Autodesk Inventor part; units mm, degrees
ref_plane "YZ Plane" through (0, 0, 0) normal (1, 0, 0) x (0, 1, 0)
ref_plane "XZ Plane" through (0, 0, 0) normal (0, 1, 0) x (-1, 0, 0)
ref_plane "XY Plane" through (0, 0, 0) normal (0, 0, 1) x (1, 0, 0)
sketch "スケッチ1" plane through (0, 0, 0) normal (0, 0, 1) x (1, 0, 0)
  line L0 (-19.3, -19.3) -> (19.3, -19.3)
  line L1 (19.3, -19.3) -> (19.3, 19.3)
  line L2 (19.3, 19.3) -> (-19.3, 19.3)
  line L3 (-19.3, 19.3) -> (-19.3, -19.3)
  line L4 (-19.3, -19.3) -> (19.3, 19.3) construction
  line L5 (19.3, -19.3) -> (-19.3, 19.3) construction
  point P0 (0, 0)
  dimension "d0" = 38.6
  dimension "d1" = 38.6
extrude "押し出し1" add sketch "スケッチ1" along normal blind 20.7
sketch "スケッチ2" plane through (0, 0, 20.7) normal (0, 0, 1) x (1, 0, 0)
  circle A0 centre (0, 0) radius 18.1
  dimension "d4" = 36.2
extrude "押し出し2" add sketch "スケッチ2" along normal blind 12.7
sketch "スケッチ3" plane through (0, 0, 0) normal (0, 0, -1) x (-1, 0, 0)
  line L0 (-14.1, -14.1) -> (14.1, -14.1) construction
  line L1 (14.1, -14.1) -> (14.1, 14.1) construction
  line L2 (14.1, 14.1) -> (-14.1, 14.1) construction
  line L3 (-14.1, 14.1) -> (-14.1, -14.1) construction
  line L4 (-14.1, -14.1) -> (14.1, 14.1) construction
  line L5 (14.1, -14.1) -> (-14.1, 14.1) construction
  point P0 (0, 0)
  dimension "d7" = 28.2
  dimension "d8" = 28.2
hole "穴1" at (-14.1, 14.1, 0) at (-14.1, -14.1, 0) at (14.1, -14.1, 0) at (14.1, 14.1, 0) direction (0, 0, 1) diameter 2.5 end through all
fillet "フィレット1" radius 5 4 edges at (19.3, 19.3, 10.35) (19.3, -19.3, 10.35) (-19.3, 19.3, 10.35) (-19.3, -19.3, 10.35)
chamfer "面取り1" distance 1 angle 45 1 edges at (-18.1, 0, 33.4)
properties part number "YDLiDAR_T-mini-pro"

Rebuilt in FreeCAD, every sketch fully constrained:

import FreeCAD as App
import Part
import Sketcher
from FreeCAD import Vector
Q = App.Units.Quantity


def edges_at(feature, points):
    """Names of the edges that pass closest to the given points."""
    edges = feature.Shape.Edges
    near = lambda p: min(range(len(edges)), key=lambda i: edges[i].distToShape(Part.Vertex(*p))[0])
    return sorted({f"Edge{near(p) + 1}" for p in points})


def add_polygon(sketch, points):
    """Adds a closed chain of lines whose ends are joined by coincident constraints."""
    first, n = sketch.GeometryCount, len(points)
    for a, b in zip(points, points[1:] + points[:1]):
        sketch.addGeometry(Part.LineSegment(App.Vector(*a, 0), App.Vector(*b, 0)), False)
    for i in range(n):
        sketch.addConstraint(Sketcher.Constraint("Coincident", first + i, 2, first + (i + 1) % n, 1))

doc = App.newDocument("Part")
body = doc.addObject("PartDesign::Body", "Body")

sketch1 = body.newObject("Sketcher::SketchObject", "Sketch")
sketch1.AttachmentSupport = (doc.getObject("XY_Plane"), [""])
sketch1.MapMode = "FlatFace"
add_polygon(sketch1, [(-19, 19), (-19, -19), (19, -19), (19, 19)])
sketch1.addConstraint([
    Sketcher.Constraint("Vertical", 0),
    Sketcher.Constraint("Horizontal", 1),
    Sketcher.Constraint("Vertical", 2),
    Sketcher.Constraint("Horizontal", 3),
    Sketcher.Constraint("Symmetric", 0, 2, 2, 2, -1, 1),
    Sketcher.Constraint("Equal", 3, 0),
    Sketcher.Constraint("DistanceX", 1, 1, 1, 2, Q("38.6 mm")),
])
pad1 = body.newObject("PartDesign::Pad", "Pad")
pad1.Profile = sketch1
pad1.Length = 20.7

sketch2 = body.newObject("Sketcher::SketchObject", "Sketch001")
sketch2.AttachmentSupport = (doc.getObject("XY_Plane"), [""])
sketch2.MapMode = "FlatFace"
sketch2.AttachmentOffset = App.Placement(Vector(0, 0, 20.7), App.Rotation())
sketch2.addGeometry(Part.Circle(Vector(0, 0, 0), Vector(0, 0, 1), 18), False)
sketch2.addConstraint([
    Sketcher.Constraint("Coincident", 0, 3, -1, 1),
    Sketcher.Constraint("Diameter", 0, Q("36.2 mm")),
])
pad2 = body.newObject("PartDesign::Pad", "Pad001")
pad2.Profile = sketch2
pad2.Length = 12.7

sketch3 = body.newObject("Sketcher::SketchObject", "Sketch002")
sketch3.AttachmentSupport = (doc.getObject("XY_Plane"), [""])
sketch3.MapMode = "FlatFace"
sketch3.addGeometry([
    Part.Circle(Vector(-14.1, 14.1, 0), Vector(0, 0, 1), 1.2),
    Part.Circle(Vector(-14.1, -14.1, 0), Vector(0, 0, 1), 1.2),
    Part.Circle(Vector(14.1, -14.1, 0), Vector(0, 0, 1), 1.2),
    Part.Circle(Vector(14.1, 14.1, 0), Vector(0, 0, 1), 1.2),
], False)
sketch3.addConstraint([
    Sketcher.Constraint("Equal", 0, 1),
    Sketcher.Constraint("Equal", 1, 2),
    Sketcher.Constraint("Equal", 2, 3),
    Sketcher.Constraint("Symmetric", 0, 3, 2, 3, -1, 1),
    Sketcher.Constraint("Symmetric", 1, 3, 3, 3, -1, 1),
    Sketcher.Constraint("Symmetric", 1, 3, 2, 3, -2),
    Sketcher.Constraint("Diameter", 0, Q("2.5 mm")),
    Sketcher.Constraint("DistanceX", 0, 3, -1, 1, Q("14.1 mm")),
    Sketcher.Constraint("DistanceY", -1, 1, 0, 3, Q("14.1 mm")),
])
doc.recompute()
hole = body.newObject("PartDesign::Hole", "Hole")
hole.Profile = sketch3
hole.ThreadType = "None"
hole.Diameter = 2.5
hole.DepthType = "ThroughAll"
hole.Reversed = True
doc.recompute()

fillet = body.newObject("PartDesign::Fillet", "Fillet")
fillet.Base = (hole, edges_at(hole, [
    (19.3, 19.3, 10.35),
    (19.3, -19.3, 10.35),
    (-19.3, 19.3, 10.35),
    (-19.3, -19.3, 10.35),
]))
fillet.Radius = 5
doc.recompute()

chamfer = body.newObject("PartDesign::Chamfer", "Chamfer")
chamfer.Base = (fillet, edges_at(fillet, [(-18.1, 0, 33.4)]))
chamfer.Size = 1

doc.recompute()
